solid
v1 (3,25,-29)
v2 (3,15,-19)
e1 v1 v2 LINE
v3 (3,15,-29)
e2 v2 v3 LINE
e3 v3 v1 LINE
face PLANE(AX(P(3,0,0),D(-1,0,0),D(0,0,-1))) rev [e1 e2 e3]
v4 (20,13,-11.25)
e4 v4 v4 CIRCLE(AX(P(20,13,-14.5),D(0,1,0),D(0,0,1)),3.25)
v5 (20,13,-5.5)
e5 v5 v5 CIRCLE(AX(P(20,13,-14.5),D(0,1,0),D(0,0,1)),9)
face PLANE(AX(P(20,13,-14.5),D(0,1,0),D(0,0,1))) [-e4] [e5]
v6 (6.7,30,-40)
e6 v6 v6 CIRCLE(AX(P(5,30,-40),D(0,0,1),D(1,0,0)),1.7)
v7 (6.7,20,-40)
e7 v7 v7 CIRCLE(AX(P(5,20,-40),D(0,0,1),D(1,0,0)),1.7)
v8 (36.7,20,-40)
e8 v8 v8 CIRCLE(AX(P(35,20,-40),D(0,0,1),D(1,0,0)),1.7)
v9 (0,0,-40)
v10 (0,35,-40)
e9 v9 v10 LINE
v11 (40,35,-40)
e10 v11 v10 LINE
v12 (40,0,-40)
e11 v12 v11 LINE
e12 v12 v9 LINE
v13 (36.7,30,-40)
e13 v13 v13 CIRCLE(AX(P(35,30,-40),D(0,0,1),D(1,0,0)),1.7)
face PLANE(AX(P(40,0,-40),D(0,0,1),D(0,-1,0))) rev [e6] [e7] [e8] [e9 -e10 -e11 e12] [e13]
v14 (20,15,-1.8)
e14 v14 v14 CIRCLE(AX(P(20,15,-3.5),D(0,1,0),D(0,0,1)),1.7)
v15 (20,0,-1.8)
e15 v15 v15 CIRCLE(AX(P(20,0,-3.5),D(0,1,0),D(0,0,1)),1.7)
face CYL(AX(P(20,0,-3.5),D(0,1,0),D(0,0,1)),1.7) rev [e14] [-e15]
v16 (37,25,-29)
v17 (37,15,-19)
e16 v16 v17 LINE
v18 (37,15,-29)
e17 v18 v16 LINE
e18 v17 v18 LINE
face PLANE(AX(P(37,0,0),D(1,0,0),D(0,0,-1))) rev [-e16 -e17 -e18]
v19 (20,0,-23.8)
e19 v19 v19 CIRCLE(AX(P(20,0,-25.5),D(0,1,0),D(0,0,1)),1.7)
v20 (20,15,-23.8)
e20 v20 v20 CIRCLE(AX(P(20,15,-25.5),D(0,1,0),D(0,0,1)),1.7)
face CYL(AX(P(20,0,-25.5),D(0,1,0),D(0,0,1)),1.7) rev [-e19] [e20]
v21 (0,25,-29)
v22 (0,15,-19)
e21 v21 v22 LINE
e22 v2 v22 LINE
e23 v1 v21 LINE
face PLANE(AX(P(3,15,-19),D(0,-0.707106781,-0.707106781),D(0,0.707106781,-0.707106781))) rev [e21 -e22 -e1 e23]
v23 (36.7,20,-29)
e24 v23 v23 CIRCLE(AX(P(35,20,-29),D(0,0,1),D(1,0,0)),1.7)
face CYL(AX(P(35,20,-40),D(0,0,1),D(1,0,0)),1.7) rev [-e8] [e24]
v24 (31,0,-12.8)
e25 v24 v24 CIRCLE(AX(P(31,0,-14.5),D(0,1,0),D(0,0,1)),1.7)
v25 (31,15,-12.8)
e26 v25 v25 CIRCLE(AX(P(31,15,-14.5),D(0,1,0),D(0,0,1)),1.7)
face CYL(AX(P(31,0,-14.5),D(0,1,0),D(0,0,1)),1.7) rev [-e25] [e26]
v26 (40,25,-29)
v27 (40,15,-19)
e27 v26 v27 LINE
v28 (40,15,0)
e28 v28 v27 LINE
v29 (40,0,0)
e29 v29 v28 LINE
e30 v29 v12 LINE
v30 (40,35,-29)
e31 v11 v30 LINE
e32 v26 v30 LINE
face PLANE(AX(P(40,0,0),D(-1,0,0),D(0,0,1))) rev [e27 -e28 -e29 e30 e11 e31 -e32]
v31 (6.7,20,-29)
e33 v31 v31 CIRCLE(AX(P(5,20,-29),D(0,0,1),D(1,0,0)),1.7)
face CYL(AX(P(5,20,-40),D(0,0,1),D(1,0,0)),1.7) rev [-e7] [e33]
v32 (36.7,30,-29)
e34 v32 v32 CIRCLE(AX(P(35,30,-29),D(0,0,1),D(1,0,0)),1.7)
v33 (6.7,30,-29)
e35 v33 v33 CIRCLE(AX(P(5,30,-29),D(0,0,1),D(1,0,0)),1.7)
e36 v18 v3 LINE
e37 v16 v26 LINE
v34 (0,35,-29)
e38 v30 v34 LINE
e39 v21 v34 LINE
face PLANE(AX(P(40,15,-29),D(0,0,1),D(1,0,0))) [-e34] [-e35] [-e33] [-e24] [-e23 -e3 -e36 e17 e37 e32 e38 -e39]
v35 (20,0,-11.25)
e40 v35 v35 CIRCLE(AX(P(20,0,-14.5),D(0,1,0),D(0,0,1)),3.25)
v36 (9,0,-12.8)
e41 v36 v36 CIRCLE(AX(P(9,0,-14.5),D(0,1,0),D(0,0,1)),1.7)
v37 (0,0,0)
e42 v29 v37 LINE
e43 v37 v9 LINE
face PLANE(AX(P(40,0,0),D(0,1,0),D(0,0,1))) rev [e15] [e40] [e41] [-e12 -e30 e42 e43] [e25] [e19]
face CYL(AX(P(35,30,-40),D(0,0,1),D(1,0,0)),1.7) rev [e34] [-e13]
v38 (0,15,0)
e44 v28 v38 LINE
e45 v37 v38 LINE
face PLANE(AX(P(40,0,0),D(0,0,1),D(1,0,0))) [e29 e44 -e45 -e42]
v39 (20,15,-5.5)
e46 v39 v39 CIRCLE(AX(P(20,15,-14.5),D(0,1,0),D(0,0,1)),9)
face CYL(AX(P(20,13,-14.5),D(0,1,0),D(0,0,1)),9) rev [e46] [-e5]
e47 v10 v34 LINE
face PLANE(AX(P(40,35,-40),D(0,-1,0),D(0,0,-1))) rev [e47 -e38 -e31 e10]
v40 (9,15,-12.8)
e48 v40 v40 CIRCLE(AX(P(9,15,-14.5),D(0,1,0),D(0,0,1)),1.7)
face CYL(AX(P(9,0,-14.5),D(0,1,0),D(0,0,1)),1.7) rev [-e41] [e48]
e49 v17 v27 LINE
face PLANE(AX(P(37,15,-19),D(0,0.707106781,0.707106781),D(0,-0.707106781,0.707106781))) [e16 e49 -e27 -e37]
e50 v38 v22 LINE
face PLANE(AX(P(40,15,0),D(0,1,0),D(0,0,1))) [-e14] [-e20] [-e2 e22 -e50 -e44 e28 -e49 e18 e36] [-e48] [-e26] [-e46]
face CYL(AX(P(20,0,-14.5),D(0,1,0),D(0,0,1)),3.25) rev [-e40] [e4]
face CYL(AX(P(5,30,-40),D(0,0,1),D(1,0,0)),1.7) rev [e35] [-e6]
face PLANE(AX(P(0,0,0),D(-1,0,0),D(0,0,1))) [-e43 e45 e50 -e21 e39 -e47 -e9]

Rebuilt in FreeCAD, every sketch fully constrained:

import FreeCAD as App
import Part
import Sketcher
Q = App.Units.Quantity


def add_polygon(sketch, points):
    """Adds a closed chain of lines whose ends are joined by coincident constraints."""
    first, n = sketch.GeometryCount, len(points)
    for a, b in zip(points, points[1:] + points[:1]):
        sketch.addGeometry(Part.LineSegment(App.Vector(*a, 0), App.Vector(*b, 0)), False)
    for i in range(n):
        sketch.addConstraint(Sketcher.Constraint("Coincident", first + i, 2, first + (i + 1) % n, 1))

doc = App.newDocument("Part")
body = doc.addObject("PartDesign::Body", "Body")

# Sketch on YZ plane
sketch1 = body.newObject("Sketcher::SketchObject", "Sketch")
sketch1.AttachmentSupport = (doc.getObject("YZ_Plane"), [""])
sketch1.MapMode = "FlatFace"
add_polygon(sketch1, [(0, 0), (0, -40), (35, -40), (35, -29), (15, -29), (15, 0)])  # lines 0-5
sketch1.addConstraint([
    Sketcher.Constraint("Vertical", 0),
    Sketcher.Constraint("Horizontal", 1),
    Sketcher.Constraint("Vertical", 2),
    Sketcher.Constraint("Horizontal", 3),
    Sketcher.Constraint("Vertical", 4),
    Sketcher.Constraint("Horizontal", 5),
    Sketcher.Constraint("Coincident", 5, 2, -1, 1),
    Sketcher.Constraint("DistanceX", 1, 1, 1, 2, Q("35 mm")),
    Sketcher.Constraint("DistanceX", 3, 2, 3, 1, Q("20 mm")),
    Sketcher.Constraint("DistanceY", 0, 2, 0, 1, Q("40 mm")),
    Sketcher.Constraint("DistanceY", 2, 1, 2, 2, Q("11 mm")),
])
pad1 = body.newObject("PartDesign::Pad", "Pad")
pad1.Profile = sketch1
pad1.Length = 40

# Sketch on XZ plane
sketch2 = body.newObject("Sketcher::SketchObject", "Sketch001")
sketch2.AttachmentSupport = (doc.getObject("XZ_Plane"), [""])
sketch2.MapMode = "FlatFace"
sketch2.AttachmentOffset = App.Placement(App.Vector(0, 0, -15), App.Rotation())
sketch2.addGeometry(Part.Circle(App.Vector(20, -14.5, 0), App.Vector(0, 0, 1), 9), False)
sketch2.addConstraint([
    Sketcher.Constraint("Diameter", 0, Q("18 mm")),
    Sketcher.Constraint("DistanceX", -1, 1, 0, 3, Q("20 mm")),
    Sketcher.Constraint("DistanceY", 0, 3, -1, 1, Q("14.5 mm")),
])
pocket1 = body.newObject("PartDesign::Pocket", "Pocket")
pocket1.Profile = sketch2
pocket1.Length = 2
pocket1.Reversed = True

# Sketch on XZ plane
sketch3 = body.newObject("Sketcher::SketchObject", "Sketch002")
sketch3.AttachmentSupport = (doc.getObject("XZ_Plane"), [""])
sketch3.MapMode = "FlatFace"
sketch3.AttachmentOffset = App.Placement(App.Vector(0, 0, -13), App.Rotation())
sketch3.addGeometry(Part.Circle(App.Vector(20, -14.5, 0), App.Vector(0, 0, 1), 3.25), False)
sketch3.addConstraint([
    Sketcher.Constraint("Diameter", 0, Q("6.5 mm")),
    Sketcher.Constraint("DistanceX", -1, 1, 0, 3, Q("20 mm")),
    Sketcher.Constraint("DistanceY", 0, 3, -1, 1, Q("14.5 mm")),
])
pocket2 = body.newObject("PartDesign::Pocket", "Pocket001")
pocket2.Profile = sketch3
pocket2.Type = "ThroughAll"
pocket2.Reversed = True

# Sketch on XZ plane
sketch4 = body.newObject("Sketcher::SketchObject", "Sketch003")
sketch4.AttachmentSupport = (doc.getObject("XZ_Plane"), [""])
sketch4.MapMode = "FlatFace"
sketch4.AttachmentOffset = App.Placement(App.Vector(0, 0, -15), App.Rotation())
sketch4.addGeometry([
    Part.Circle(App.Vector(31, -14.5, 0), App.Vector(0, 0, 1), 1.7),
    Part.Circle(App.Vector(20, -25.5, 0), App.Vector(0, 0, 1), 1.7),
    Part.Circle(App.Vector(9, -14.5, 0), App.Vector(0, 0, 1), 1.7),
    Part.Circle(App.Vector(20, -3.5, 0), App.Vector(0, 0, 1), 1.7),
], False)
sketch4.addConstraint([
    Sketcher.Constraint("Equal", 0, 1),
    Sketcher.Constraint("Equal", 1, 2),
    Sketcher.Constraint("Equal", 2, 3),
    Sketcher.Constraint("Horizontal", 0, 3, 2, 3),
    Sketcher.Constraint("Vertical", 1, 3, 3, 3),
    Sketcher.Constraint("Diameter", 0, Q("3.4 mm")),
    Sketcher.Constraint("DistanceX", -1, 1, 0, 3, Q("31 mm")),
    Sketcher.Constraint("DistanceX", -1, 1, 1, 3, Q("20 mm")),
    Sketcher.Constraint("DistanceX", -1, 1, 2, 3, Q("9 mm")),
    Sketcher.Constraint("DistanceY", 1, 3, 0, 3, Q("11 mm")),
    Sketcher.Constraint("DistanceY", 0, 3, 3, 3, Q("11 mm")),
    Sketcher.Constraint("DistanceY", 0, 3, -1, 1, Q("14.5 mm")),
])
pocket3 = body.newObject("PartDesign::Pocket", "Pocket002")
pocket3.Profile = sketch4
pocket3.Type = "ThroughAll"
pocket3.Reversed = True

# Sketch on XY plane
sketch5 = body.newObject("Sketcher::SketchObject", "Sketch004")
sketch5.AttachmentSupport = (doc.getObject("XY_Plane"), [""])
sketch5.MapMode = "FlatFace"
sketch5.AttachmentOffset = App.Placement(App.Vector(0, 0, -29), App.Rotation())
sketch5.addGeometry([
    Part.Circle(App.Vector(35, 30, 0), App.Vector(0, 0, 1), 1.7),
    Part.Circle(App.Vector(35, 20, 0), App.Vector(0, 0, 1), 1.7),
    Part.Circle(App.Vector(5, 30, 0), App.Vector(0, 0, 1), 1.7),
    Part.Circle(App.Vector(5, 20, 0), App.Vector(0, 0, 1), 1.7),
], False)
sketch5.addConstraint([
    Sketcher.Constraint("Equal", 0, 1),
    Sketcher.Constraint("Equal", 1, 2),
    Sketcher.Constraint("Equal", 2, 3),
    Sketcher.Constraint("Horizontal", 0, 3, 2, 3),
    Sketcher.Constraint("Horizontal", 1, 3, 3, 3),
    Sketcher.Constraint("Vertical", 0, 3, 1, 3),
    Sketcher.Constraint("Vertical", 2, 3, 3, 3),
    Sketcher.Constraint("Diameter", 0, Q("3.4 mm")),
    Sketcher.Constraint("DistanceX", -1, 1, 0, 3, Q("35 mm")),
    Sketcher.Constraint("DistanceY", -1, 1, 0, 3, Q("30 mm")),
    Sketcher.Constraint("DistanceY", -1, 1, 1, 3, Q("20 mm")),
    Sketcher.Constraint("DistanceX", -1, 1, 2, 3, Q("5 mm")),
])
pocket4 = body.newObject("PartDesign::Pocket", "Pocket003")
pocket4.Profile = sketch5
pocket4.Type = "ThroughAll"

# Sketch on YZ plane
sketch6 = body.newObject("Sketcher::SketchObject", "Sketch005")
sketch6.AttachmentSupport = (doc.getObject("YZ_Plane"), [""])
sketch6.MapMode = "FlatFace"
sketch6.AttachmentOffset = App.Placement(App.Vector(0, 0, 40), App.Rotation())
add_polygon(sketch6, [(15, -29), (25, -29), (15, -19)])  # lines 0-2
sketch6.addConstraint([
    Sketcher.Constraint("Horizontal", 0),
    Sketcher.Constraint("Vertical", 2),
    Sketcher.Constraint("Equal", 0, 2),
    Sketcher.Constraint("DistanceX", 0, 1, 0, 2, Q("10 mm")),
    Sketcher.Constraint("DistanceX", -1, 1, 0, 2, Q("25 mm")),
    Sketcher.Constraint("DistanceY", 0, 2, -1, 1, Q("29 mm")),
])
pad2 = body.newObject("PartDesign::Pad", "Pad001")
pad2.Profile = sketch6
pad2.Length = 3
pad2.Reversed = True
doc.recompute()

datumplane = body.newObject("PartDesign::Plane", "DatumPlane")
datumplane.AttachmentSupport = (doc.getObject("YZ_Plane"), [""])
datumplane.MapMode = "FlatFace"
datumplane.AttachmentOffset = App.Placement(App.Vector(0, 0, 20), App.Rotation())
mirrored = body.newObject("PartDesign::Mirrored", "Mirrored")
mirrored.Originals = [pad2]
mirrored.MirrorPlane = (datumplane, [""])
body.Tip = mirrored

doc.recompute()
